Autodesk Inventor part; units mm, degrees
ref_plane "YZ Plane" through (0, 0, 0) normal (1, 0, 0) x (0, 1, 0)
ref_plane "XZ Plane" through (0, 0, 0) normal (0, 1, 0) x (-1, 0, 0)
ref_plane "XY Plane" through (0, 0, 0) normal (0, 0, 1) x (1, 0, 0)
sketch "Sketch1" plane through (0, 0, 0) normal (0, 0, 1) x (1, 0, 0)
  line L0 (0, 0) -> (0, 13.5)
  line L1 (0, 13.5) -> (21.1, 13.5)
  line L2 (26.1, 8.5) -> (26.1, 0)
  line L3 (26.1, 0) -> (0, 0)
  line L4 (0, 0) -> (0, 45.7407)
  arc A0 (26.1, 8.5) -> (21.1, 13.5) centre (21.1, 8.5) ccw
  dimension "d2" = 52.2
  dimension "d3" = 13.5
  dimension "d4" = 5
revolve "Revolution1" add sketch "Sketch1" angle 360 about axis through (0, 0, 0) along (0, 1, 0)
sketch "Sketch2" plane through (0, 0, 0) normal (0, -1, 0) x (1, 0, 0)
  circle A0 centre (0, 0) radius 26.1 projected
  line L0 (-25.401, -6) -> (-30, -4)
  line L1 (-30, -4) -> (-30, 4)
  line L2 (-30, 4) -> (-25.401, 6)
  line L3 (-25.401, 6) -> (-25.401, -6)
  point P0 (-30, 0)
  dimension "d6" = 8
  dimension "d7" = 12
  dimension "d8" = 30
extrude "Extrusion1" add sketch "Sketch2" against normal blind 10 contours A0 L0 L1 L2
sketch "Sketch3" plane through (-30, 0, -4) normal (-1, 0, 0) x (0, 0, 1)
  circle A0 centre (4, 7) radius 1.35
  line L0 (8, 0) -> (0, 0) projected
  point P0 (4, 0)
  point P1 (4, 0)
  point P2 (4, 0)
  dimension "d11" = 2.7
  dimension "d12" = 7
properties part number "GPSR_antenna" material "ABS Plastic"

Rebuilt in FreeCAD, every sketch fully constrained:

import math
import FreeCAD as App
import Part
import Sketcher
from FreeCAD import Vector
Q = App.Units.Quantity

doc = App.newDocument("Part")
params = doc.addObject("Spreadsheet::Sheet", "Params")
for row, (alias, value) in enumerate([
    ("sketch1_radius", "5 mm"),
    ("sketch1_height", "13.5 mm"),
    ("sketch1_width", "26.1 mm"),
    ("revolution_angle", "360 deg"),
    ("sketch2_height", "8 mm"),
    ("sketch2_radius", "26.1 mm"),
    ("pad1_length", "10 mm"),
], start=1):
    params.set(f"A{row}", alias)
    params.set(f"B{row}", "=" + value)
    params.setAlias(f"B{row}", alias)

body = doc.addObject("PartDesign::Body", "Body")

# Sketch on XY plane
sketch1 = doc.addObject("Sketcher::SketchObject", "Sketch")
body.addObject(sketch1)
sketch1.AttachmentSupport = (doc.XY_Plane, [""])
sketch1.MapMode = "FlatFace"
sketch1.addGeometry(Part.LineSegment(Vector(0, 14, 0), Vector(0, 0, 0)), False)
sketch1.addGeometry(Part.LineSegment(Vector(0, 0, 0), Vector(26, 0, 0)), False)
sketch1.addGeometry(Part.LineSegment(Vector(26, 0, 0), Vector(26, 8, 0)), False)
sketch1.addGeometry(Part.ArcOfCircle(Part.Circle(Vector(21, 8, 0), Vector(0, 0, 1), 5), math.radians(0), math.radians(90)), False)
sketch1.addGeometry(Part.LineSegment(Vector(21, 14, 0), Vector(0, 14, 0)), False)
sketch1.addConstraint(Sketcher.Constraint("Coincident", 0, 2, 1, 1))
sketch1.addConstraint(Sketcher.Constraint("Coincident", 1, 2, 2, 1))
sketch1.addConstraint(Sketcher.Constraint("Tangent", 2, 2, 3, 1))
sketch1.addConstraint(Sketcher.Constraint("Tangent", 3, 2, 4, 1))
sketch1.addConstraint(Sketcher.Constraint("Coincident", 4, 2, 0, 1))
sketch1.addConstraint(Sketcher.Constraint("Vertical", 0))
sketch1.addConstraint(Sketcher.Constraint("Horizontal", 1))
sketch1.addConstraint(Sketcher.Constraint("Vertical", 2))
sketch1.addConstraint(Sketcher.Constraint("Horizontal", 4))
sketch1.addConstraint(Sketcher.Constraint("Coincident", 0, 2, -1, 1))
sketch1.addConstraint(Sketcher.Constraint("Radius", 3, Q("5 mm")))
sketch1.addConstraint(Sketcher.Constraint("DistanceY", 0, 2, 0, 1, Q("13.5 mm")))
sketch1.addConstraint(Sketcher.Constraint("DistanceX", 1, 1, 1, 2, Q("26.1 mm")))
sketch1.setExpression("Constraints[10]", "Params.sketch1_radius")
sketch1.setExpression("Constraints[11]", "Params.sketch1_height")
sketch1.setExpression("Constraints[12]", "Params.sketch1_width")
revolution = doc.addObject("PartDesign::Revolution", "Revolution")
body.addObject(revolution)
revolution.Profile = sketch1
revolution.ReferenceAxis = (sketch1, ["V_Axis"])
revolution.setExpression("Angle", "Params.revolution_angle")

# Sketch on XZ plane
sketch2 = doc.addObject("Sketcher::SketchObject", "Sketch001")
body.addObject(sketch2)
sketch2.AttachmentSupport = (doc.XZ_Plane, [""])
sketch2.MapMode = "FlatFace"
sketch2.addGeometry(Part.ArcOfCircle(Part.Circle(Vector(0, 0, 0), Vector(0, 0, 1), 26), math.radians(167), math.radians(193)), False)
sketch2.addGeometry(Part.LineSegment(Vector(-25, 6, 0), Vector(-30, 4, 0)), False)
sketch2.addGeometry(Part.LineSegment(Vector(-30, 4, 0), Vector(-30, -4, 0)), False)
sketch2.addGeometry(Part.LineSegment(Vector(-30, -4, 0), Vector(-25, -6, 0)), False)
sketch2.addConstraint(Sketcher.Constraint("Coincident", 0, 1, 1, 1))
sketch2.addConstraint(Sketcher.Constraint("Coincident", 1, 2, 2, 1))
sketch2.addConstraint(Sketcher.Constraint("Coincident", 2, 2, 3, 1))
sketch2.addConstraint(Sketcher.Constraint("Coincident", 3, 2, 0, 2))
sketch2.addConstraint(Sketcher.Constraint("Vertical", 2))
sketch2.addConstraint(Sketcher.Constraint("Coincident", 0, 3, -1, 1))
sketch2.addConstraint(Sketcher.Constraint("Vertical", 0, 1, 3, 2))
sketch2.addConstraint(Sketcher.Constraint("Equal", 1, 3))
sketch2.addConstraint(Sketcher.Constraint("DistanceY", 2, 2, 2, 1, Q("8 mm")))
sketch2.addConstraint(Sketcher.Constraint("DistanceX", 1, 2, -1, 1, Q("30 mm")))
sketch2.addConstraint(Sketcher.Constraint("DistanceY", 3, 2, 0, 1, Q("12 mm")))
sketch2.addConstraint(Sketcher.Constraint("Radius", 0, Q("26.1 mm")))
sketch2.setExpression("Constraints[8]", "Params.sketch2_height")
sketch2.setExpression("Constraints[11]", "Params.sketch2_radius")
pad1 = doc.addObject("PartDesign::Pad", "Pad")
body.addObject(pad1)
pad1.Profile = sketch2
pad1.setExpression("Length", "Params.pad1_length")
pad1.Reversed = True

doc.recompute()
